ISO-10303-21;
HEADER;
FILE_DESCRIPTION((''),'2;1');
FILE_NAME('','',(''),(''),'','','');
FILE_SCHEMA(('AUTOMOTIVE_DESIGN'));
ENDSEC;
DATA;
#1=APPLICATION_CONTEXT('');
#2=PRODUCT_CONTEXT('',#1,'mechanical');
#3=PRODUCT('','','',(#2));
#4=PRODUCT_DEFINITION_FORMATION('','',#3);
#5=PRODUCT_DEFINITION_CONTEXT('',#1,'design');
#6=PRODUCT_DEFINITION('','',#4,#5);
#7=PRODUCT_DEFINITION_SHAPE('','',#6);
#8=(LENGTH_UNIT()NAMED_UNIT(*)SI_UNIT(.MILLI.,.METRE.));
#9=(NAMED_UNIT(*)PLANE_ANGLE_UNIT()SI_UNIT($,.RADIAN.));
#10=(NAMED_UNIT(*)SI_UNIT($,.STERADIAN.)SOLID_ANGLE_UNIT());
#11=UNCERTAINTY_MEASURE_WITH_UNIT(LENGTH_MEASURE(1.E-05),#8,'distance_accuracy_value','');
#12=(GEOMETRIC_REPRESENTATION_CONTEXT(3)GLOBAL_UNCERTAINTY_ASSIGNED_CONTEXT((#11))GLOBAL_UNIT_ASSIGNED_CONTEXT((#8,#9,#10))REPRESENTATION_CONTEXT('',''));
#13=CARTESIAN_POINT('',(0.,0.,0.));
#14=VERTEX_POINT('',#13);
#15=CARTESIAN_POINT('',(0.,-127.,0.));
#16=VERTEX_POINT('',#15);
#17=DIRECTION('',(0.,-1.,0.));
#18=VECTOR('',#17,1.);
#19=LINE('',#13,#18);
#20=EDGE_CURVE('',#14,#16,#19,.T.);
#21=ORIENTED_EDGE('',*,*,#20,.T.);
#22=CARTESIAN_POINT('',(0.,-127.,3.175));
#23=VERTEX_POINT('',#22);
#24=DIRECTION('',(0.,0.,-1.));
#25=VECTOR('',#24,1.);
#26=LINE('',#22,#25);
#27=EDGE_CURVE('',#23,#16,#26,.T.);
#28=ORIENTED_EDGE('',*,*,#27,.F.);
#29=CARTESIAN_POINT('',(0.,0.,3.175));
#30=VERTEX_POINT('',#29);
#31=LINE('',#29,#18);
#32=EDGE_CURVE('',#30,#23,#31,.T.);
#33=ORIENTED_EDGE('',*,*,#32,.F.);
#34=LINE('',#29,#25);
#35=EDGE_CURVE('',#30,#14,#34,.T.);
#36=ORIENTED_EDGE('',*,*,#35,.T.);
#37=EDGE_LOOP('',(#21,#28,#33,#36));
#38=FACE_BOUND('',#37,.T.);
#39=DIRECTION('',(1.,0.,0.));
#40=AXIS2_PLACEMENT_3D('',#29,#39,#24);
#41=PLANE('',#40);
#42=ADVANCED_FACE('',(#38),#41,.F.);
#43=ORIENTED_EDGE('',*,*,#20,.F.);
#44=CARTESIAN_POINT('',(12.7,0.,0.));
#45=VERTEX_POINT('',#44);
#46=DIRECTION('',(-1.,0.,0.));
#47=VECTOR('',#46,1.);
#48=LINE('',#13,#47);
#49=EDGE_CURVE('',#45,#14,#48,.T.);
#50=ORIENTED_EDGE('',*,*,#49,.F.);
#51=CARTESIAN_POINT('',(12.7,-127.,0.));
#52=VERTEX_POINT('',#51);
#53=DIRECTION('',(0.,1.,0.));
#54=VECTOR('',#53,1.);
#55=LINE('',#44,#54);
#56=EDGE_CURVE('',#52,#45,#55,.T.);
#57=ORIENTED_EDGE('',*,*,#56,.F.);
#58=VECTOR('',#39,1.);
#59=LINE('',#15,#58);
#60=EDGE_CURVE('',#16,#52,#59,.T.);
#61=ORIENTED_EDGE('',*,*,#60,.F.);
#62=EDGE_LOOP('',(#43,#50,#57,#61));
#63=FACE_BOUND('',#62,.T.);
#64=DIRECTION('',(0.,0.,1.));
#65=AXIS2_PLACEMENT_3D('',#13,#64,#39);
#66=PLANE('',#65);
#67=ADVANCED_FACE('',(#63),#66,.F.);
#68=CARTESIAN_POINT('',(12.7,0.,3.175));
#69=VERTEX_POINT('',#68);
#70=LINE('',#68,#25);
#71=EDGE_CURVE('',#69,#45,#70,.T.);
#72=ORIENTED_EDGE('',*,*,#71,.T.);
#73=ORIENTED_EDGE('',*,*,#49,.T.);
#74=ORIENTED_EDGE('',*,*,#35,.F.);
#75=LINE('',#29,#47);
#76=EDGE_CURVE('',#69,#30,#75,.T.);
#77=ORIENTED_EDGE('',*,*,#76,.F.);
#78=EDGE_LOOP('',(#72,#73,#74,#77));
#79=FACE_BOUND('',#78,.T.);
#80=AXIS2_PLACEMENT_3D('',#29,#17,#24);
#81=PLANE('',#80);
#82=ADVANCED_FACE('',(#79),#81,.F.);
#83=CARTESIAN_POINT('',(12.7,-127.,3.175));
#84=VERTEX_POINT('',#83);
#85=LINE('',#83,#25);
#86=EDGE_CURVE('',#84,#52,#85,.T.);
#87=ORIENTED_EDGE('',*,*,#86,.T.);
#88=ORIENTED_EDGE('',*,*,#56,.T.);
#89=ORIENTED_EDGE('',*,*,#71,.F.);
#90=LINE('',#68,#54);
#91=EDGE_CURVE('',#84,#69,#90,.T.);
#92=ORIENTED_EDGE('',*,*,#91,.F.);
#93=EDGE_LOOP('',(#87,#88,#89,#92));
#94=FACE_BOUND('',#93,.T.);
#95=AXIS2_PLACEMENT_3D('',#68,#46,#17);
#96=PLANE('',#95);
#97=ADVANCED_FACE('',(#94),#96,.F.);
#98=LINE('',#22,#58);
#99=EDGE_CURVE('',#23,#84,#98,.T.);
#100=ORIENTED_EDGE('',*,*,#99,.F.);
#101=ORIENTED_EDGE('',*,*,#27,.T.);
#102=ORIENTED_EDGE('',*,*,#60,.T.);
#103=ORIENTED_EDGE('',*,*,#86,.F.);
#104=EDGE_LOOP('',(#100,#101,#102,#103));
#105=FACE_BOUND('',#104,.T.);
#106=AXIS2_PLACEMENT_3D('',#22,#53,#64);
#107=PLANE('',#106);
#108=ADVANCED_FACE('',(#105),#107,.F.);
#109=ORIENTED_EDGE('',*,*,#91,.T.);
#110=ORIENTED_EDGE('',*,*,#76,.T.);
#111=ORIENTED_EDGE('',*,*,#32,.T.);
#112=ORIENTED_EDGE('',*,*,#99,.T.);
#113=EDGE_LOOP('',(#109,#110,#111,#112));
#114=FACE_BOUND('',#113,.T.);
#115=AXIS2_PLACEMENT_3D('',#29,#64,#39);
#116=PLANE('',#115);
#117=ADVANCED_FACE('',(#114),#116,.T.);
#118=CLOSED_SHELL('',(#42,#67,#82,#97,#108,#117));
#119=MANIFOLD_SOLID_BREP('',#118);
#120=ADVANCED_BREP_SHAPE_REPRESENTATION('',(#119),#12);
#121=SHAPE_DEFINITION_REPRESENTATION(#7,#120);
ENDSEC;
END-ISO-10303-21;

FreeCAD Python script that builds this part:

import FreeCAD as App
import Part
import Sketcher
from FreeCAD import Vector
Q = App.Units.Quantity

doc = App.newDocument("Part")
body = doc.addObject("PartDesign::Body", "Body")

# Sketch on XY plane
sketch1 = doc.addObject("Sketcher::SketchObject", "Sketch")
body.addObject(sketch1)
sketch1.AttachmentSupport = (doc.XY_Plane, [""])
sketch1.MapMode = "FlatFace"
sketch1.addGeometry([
    Part.LineSegment(Vector(0, 0, 0), Vector(0, -127, 0)),
    Part.LineSegment(Vector(0, -127, 0), Vector(13, -127, 0)),
    Part.LineSegment(Vector(13, -127, 0), Vector(13, 0, 0)),
    Part.LineSegment(Vector(13, 0, 0), Vector(0, 0, 0)),
], False)
sketch1.addConstraint([
    Sketcher.Constraint("Coincident", 0, 2, 1, 1),
    Sketcher.Constraint("Coincident", 1, 2, 2, 1),
    Sketcher.Constraint("Coincident", 2, 2, 3, 1),
    Sketcher.Constraint("Coincident", 3, 2, 0, 1),
    Sketcher.Constraint("Vertical", 0),
    Sketcher.Constraint("Horizontal", 1),
    Sketcher.Constraint("Vertical", 2),
    Sketcher.Constraint("Horizontal", 3),
    Sketcher.Constraint("Coincident", 3, 2, -1, 1),
    Sketcher.Constraint("DistanceY", 0, 2, 0, 1, Q("5 in")),
    Sketcher.Constraint("DistanceX", 1, 1, 1, 2, Q("0.5 in")),
])
pad1 = doc.addObject("PartDesign::Pad", "Pad")
body.addObject(pad1)
pad1.Profile = sketch1
pad1.Length = Q("0.125 in")

doc.recompute()
